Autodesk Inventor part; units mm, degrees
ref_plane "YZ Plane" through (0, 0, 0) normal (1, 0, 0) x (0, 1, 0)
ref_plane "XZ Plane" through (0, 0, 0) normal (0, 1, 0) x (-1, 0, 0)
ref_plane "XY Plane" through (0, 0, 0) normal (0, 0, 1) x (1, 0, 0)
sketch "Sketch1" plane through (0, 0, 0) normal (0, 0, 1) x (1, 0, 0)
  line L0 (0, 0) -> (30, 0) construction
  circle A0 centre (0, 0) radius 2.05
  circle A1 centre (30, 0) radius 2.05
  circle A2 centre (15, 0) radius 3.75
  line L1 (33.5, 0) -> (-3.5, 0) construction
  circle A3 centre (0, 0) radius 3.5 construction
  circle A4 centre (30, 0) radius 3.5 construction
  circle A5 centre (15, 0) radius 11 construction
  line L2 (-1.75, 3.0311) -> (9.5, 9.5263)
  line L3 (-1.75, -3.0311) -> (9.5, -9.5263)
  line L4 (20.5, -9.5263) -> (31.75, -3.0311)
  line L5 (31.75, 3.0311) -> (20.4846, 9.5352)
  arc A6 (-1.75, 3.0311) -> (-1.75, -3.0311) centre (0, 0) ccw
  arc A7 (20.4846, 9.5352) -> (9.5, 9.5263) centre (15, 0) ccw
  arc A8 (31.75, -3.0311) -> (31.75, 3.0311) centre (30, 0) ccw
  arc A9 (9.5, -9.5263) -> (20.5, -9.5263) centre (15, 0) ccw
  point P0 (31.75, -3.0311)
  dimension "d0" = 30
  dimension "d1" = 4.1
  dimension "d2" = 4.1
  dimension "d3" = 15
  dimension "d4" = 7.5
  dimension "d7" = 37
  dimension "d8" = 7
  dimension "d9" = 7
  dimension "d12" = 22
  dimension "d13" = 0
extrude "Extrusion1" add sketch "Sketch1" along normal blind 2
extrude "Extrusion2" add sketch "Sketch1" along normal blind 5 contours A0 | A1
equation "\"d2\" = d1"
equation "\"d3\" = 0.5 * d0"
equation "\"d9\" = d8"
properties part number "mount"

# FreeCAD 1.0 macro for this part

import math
import FreeCAD as App
import Part
import Sketcher
from FreeCAD import Vector

doc = App.newDocument("Part")
body = doc.addObject("PartDesign::Body", "Body")

# Sketch on XY plane
sketch1 = body.newObject("Sketcher::SketchObject", "Sketch")
sketch1.AttachmentSupport = (doc.getObject("XY_Plane"), [""])
sketch1.MapMode = "FlatFace"
sketch1.addGeometry(Part.LineSegment(Vector(9.5, 9.5263, 0), Vector(-1.75, 3.0311, 0)), False)
sketch1.addGeometry(Part.ArcOfCircle(Part.Circle(Vector(0, 0, 0), Vector(0, 0, 1), 3.50001), math.radians(119.999909), math.radians(240.000091)), False)
sketch1.addGeometry(Part.LineSegment(Vector(-1.75, -3.0311, 0), Vector(9.5, -9.5263, 0)), False)
sketch1.addGeometry(Part.ArcOfCircle(Part.Circle(Vector(15, 0, 0), Vector(0, 0, 1), 11.000018), math.radians(-119.999946), math.radians(-60.000054)), False)
sketch1.addGeometry(Part.LineSegment(Vector(20.5, -9.5263, 0), Vector(31.75, -3.0311, 0)), False)
sketch1.addGeometry(Part.ArcOfCircle(Part.Circle(Vector(30, 0, 0), Vector(0, 0, 1), 3.50001), math.radians(-60.000091), math.radians(60.000091)), False)
sketch1.addGeometry(Part.LineSegment(Vector(31.75, 3.0311, 0), Vector(20.4846, 9.5352, 0)), False)
sketch1.addGeometry(Part.ArcOfCircle(Part.Circle(Vector(15, 0, 0), Vector(0, 0, 1), 11), math.radians(60.092699), math.radians(119.999946)), False)
sketch1.addGeometry(Part.Circle(Vector(0, 0, 0), Vector(0, 0, 1), 2.05), False)
sketch1.addGeometry(Part.Circle(Vector(15, 0, 0), Vector(0, 0, 1), 3.75), False)
sketch1.addGeometry(Part.Circle(Vector(30, 0, 0), Vector(0, 0, 1), 2.05), False)
sketch1.addConstraint(Sketcher.Constraint("Coincident", 0, 2, 1, 1))
sketch1.addConstraint(Sketcher.Constraint("Coincident", 1, 2, 2, 1))
sketch1.addConstraint(Sketcher.Constraint("Coincident", 2, 2, 3, 1))
sketch1.addConstraint(Sketcher.Constraint("Coincident", 3, 2, 4, 1))
sketch1.addConstraint(Sketcher.Constraint("Coincident", 4, 2, 5, 1))
sketch1.addConstraint(Sketcher.Constraint("Coincident", 5, 2, 6, 1))
sketch1.addConstraint(Sketcher.Constraint("Coincident", 6, 2, 7, 1))
sketch1.addConstraint(Sketcher.Constraint("Coincident", 7, 2, 0, 1))
sketch1.addConstraint(Sketcher.Constraint("Coincident", 1, 3, -1, 1))
sketch1.addConstraint(Sketcher.Constraint("Coincident", 8, 3, -1, 1))
sketch1.addConstraint(Sketcher.Constraint("Coincident", 7, 3, 3, 3))
sketch1.addConstraint(Sketcher.Constraint("Coincident", 9, 3, 3, 3))
sketch1.addConstraint(Sketcher.Constraint("Coincident", 10, 3, 5, 3))
sketch1.addConstraint(Sketcher.Constraint("PointOnObject", 3, 3, -1))
sketch1.addConstraint(Sketcher.Constraint("PointOnObject", 5, 3, -1))
sketch1.addConstraint(Sketcher.Constraint("Radius", 3, 11.0))
sketch1.addConstraint(Sketcher.Constraint("Radius", 7, 11.0))
sketch1.addConstraint(Sketcher.Constraint("Diameter", 8, 4.1))
sketch1.addConstraint(Sketcher.Constraint("Diameter", 9, 7.5))
sketch1.addConstraint(Sketcher.Constraint("Diameter", 10, 4.1))
sketch1.addConstraint(Sketcher.Constraint("Radius", 1, 3.5))
sketch1.addConstraint(Sketcher.Constraint("Radius", 5, 3.5))
sketch1.addConstraint(Sketcher.Constraint("DistanceX", -1, 1, 3, 3, 15.0))
sketch1.addConstraint(Sketcher.Constraint("DistanceX", -1, 1, 5, 3, 30.0))
sketch1.addConstraint(Sketcher.Constraint("DistanceX", 2, 2, 3, 2, 11.0))
sketch1.addConstraint(Sketcher.Constraint("DistanceX", -1, 1, 2, 2, 9.5))
sketch1.addConstraint(Sketcher.Constraint("DistanceX", -1, 1, 7, 2, 9.5))
sketch1.addConstraint(Sketcher.Constraint("DistanceX", 0, 2, -1, 1, 1.75))
sketch1.addConstraint(Sketcher.Constraint("DistanceX", 1, 2, -1, 1, 1.75))
sketch1.addConstraint(Sketcher.Constraint("DistanceX", -1, 1, 4, 2, 31.75))
sketch1.addConstraint(Sketcher.Constraint("DistanceX", -1, 1, 5, 2, 31.75))
sketch1.addConstraint(Sketcher.Constraint("DistanceY", 5, 2, 6, 2, 6.504))
pad1 = body.newObject("PartDesign::Pad", "Pad")
pad1.Profile = sketch1
pad1.Length = 2

# Sketch on XY plane
sketch2 = body.newObject("Sketcher::SketchObject", "Sketch001")
sketch2.AttachmentSupport = (doc.getObject("XY_Plane"), [""])
sketch2.MapMode = "FlatFace"
sketch2.addGeometry(Part.Circle(Vector(0, 0, 0), Vector(0, 0, 1), 2), False)
sketch2.addGeometry(Part.Circle(Vector(30, 0, 0), Vector(0, 0, 1), 2), False)
sketch2.addConstraint(Sketcher.Constraint("Coincident", 0, 3, -1, 1))
sketch2.addConstraint(Sketcher.Constraint("Equal", 0, 1))
sketch2.addConstraint(Sketcher.Constraint("PointOnObject", 1, 3, -1))
sketch2.addConstraint(Sketcher.Constraint("Diameter", 0, 4.1))
sketch2.addConstraint(Sketcher.Constraint("DistanceX", -1, 1, 1, 3, 30.0))
pad2 = body.newObject("PartDesign::Pad", "Pad001")
pad2.Profile = sketch2
pad2.Length = 5

doc.recompute()
